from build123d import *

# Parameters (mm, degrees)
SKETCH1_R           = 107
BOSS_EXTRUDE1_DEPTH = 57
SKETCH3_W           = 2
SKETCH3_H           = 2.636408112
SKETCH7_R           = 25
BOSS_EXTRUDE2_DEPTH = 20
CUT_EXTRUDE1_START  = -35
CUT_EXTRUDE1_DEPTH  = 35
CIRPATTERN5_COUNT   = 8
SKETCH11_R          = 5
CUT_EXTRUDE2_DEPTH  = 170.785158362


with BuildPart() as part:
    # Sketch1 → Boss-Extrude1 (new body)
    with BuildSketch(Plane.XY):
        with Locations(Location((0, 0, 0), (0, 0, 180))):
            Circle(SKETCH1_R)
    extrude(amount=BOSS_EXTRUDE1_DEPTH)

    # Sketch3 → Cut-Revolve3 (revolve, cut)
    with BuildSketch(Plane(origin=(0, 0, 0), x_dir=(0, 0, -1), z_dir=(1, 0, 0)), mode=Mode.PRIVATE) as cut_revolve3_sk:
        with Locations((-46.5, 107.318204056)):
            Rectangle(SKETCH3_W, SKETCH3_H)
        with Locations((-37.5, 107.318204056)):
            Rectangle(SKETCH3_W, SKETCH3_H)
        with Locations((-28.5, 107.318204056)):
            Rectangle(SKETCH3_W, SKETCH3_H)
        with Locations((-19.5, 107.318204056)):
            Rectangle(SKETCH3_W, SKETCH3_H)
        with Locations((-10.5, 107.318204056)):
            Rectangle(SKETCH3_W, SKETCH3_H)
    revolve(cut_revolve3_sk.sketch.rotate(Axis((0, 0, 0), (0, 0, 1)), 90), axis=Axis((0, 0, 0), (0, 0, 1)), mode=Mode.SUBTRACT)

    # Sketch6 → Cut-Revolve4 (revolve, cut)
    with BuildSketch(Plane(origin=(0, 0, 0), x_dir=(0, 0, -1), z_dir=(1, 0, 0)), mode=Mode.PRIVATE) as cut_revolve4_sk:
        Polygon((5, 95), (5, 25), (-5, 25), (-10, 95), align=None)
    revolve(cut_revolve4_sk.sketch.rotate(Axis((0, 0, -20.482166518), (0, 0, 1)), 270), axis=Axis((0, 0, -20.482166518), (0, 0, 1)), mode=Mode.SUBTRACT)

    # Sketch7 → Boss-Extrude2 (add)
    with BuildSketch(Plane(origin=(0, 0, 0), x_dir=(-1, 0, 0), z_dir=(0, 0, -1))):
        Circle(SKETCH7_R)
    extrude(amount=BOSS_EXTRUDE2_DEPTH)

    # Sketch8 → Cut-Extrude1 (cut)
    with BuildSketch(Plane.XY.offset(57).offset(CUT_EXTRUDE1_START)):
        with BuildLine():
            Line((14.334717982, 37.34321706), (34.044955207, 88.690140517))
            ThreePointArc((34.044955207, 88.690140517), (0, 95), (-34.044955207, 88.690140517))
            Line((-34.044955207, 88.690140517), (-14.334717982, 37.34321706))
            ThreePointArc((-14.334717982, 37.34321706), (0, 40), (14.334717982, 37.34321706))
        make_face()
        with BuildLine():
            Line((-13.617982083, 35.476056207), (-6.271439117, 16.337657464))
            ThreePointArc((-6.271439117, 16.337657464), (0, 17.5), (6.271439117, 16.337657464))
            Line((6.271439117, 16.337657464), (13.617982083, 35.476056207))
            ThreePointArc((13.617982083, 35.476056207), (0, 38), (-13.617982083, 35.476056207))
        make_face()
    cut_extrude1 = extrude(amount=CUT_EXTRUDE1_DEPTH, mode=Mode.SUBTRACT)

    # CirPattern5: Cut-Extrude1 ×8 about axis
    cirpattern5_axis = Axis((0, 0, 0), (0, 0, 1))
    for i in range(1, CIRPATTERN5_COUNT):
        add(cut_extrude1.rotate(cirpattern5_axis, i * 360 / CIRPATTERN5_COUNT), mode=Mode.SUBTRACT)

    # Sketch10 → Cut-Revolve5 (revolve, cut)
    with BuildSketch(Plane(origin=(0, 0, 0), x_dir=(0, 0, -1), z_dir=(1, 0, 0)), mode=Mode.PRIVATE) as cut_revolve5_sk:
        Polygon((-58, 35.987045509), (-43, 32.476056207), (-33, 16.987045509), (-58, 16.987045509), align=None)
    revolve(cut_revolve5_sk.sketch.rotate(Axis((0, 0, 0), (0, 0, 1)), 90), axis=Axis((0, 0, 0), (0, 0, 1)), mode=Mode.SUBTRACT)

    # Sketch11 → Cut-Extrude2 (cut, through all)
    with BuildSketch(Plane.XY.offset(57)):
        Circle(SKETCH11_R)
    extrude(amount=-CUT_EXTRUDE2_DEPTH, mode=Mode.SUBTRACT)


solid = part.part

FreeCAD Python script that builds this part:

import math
import FreeCAD as App
import Part
import Sketcher
Q = App.Units.Quantity

doc = App.newDocument("Part")
body = doc.addObject("PartDesign::Body", "Body")

sketch1 = body.newObject("Sketcher::SketchObject", "Sketch")
sketch1.AttachmentSupport = (doc.getObject("XY_Plane"), [""])
sketch1.MapMode = "FlatFace"
sketch1.addGeometry(Part.Circle(App.Vector(0, 0, 0), App.Vector(0, 0, 1), 107), False)
sketch1.addConstraint(Sketcher.Constraint("Coincident", 0, 3, -1, 1))
sketch1.addConstraint(Sketcher.Constraint("Diameter", 0, Q("214 mm")))
pad1 = body.newObject("PartDesign::Pad", "Pad")
pad1.Profile = sketch1
pad1.Length = 57

sketch2 = body.newObject("Sketcher::SketchObject", "Sketch001")
sketch2.AttachmentSupport = (doc.getObject("YZ_Plane"), [""])
sketch2.MapMode = "FlatFace"
sketch2.addGeometry(Part.LineSegment(App.Vector(108.6, 47.5, 0), App.Vector(106, 47.5, 0)), False)
sketch2.addGeometry(Part.LineSegment(App.Vector(106, 47.5, 0), App.Vector(106, 45.5, 0)), False)
sketch2.addGeometry(Part.LineSegment(App.Vector(106, 45.5, 0), App.Vector(108.6, 45.5, 0)), False)
sketch2.addGeometry(Part.LineSegment(App.Vector(108.6, 45.5, 0), App.Vector(108.6, 47.5, 0)), False)
sketch2.addGeometry(Part.LineSegment(App.Vector(108.6, 38.5, 0), App.Vector(106, 38.5, 0)), False)
sketch2.addGeometry(Part.LineSegment(App.Vector(106, 38.5, 0), App.Vector(106, 36.5, 0)), False)
sketch2.addGeometry(Part.LineSegment(App.Vector(106, 36.5, 0), App.Vector(108.6, 36.5, 0)), False)
sketch2.addGeometry(Part.LineSegment(App.Vector(108.6, 36.5, 0), App.Vector(108.6, 38.5, 0)), False)
sketch2.addGeometry(Part.LineSegment(App.Vector(108.6, 29.5, 0), App.Vector(106, 29.5, 0)), False)
sketch2.addGeometry(Part.LineSegment(App.Vector(106, 29.5, 0), App.Vector(106, 27.5, 0)), False)
sketch2.addGeometry(Part.LineSegment(App.Vector(106, 27.5, 0), App.Vector(108.6, 27.5, 0)), False)
sketch2.addGeometry(Part.LineSegment(App.Vector(108.6, 27.5, 0), App.Vector(108.6, 29.5, 0)), False)
sketch2.addGeometry(Part.LineSegment(App.Vector(108.6, 20.5, 0), App.Vector(106, 20.5, 0)), False)
sketch2.addGeometry(Part.LineSegment(App.Vector(106, 20.5, 0), App.Vector(106, 18.5, 0)), False)
sketch2.addGeometry(Part.LineSegment(App.Vector(106, 18.5, 0), App.Vector(108.6, 18.5, 0)), False)
sketch2.addGeometry(Part.LineSegment(App.Vector(108.6, 18.5, 0), App.Vector(108.6, 20.5, 0)), False)
sketch2.addGeometry(Part.LineSegment(App.Vector(108.6, 11.5, 0), App.Vector(106, 11.5, 0)), False)
sketch2.addGeometry(Part.LineSegment(App.Vector(106, 11.5, 0), App.Vector(106, 9.5, 0)), False)
sketch2.addGeometry(Part.LineSegment(App.Vector(106, 9.5, 0), App.Vector(108.6, 9.5, 0)), False)
sketch2.addGeometry(Part.LineSegment(App.Vector(108.6, 9.5, 0), App.Vector(108.6, 11.5, 0)), False)
sketch2.addConstraint(Sketcher.Constraint("Coincident", 0, 2, 1, 1))
sketch2.addConstraint(Sketcher.Constraint("Coincident", 1, 2, 2, 1))
sketch2.addConstraint(Sketcher.Constraint("Coincident", 2, 2, 3, 1))
sketch2.addConstraint(Sketcher.Constraint("Coincident", 3, 2, 0, 1))
sketch2.addConstraint(Sketcher.Constraint("Coincident", 4, 2, 5, 1))
sketch2.addConstraint(Sketcher.Constraint("Coincident", 5, 2, 6, 1))
sketch2.addConstraint(Sketcher.Constraint("Coincident", 6, 2, 7, 1))
sketch2.addConstraint(Sketcher.Constraint("Coincident", 7, 2, 4, 1))
sketch2.addConstraint(Sketcher.Constraint("Coincident", 8, 2, 9, 1))
sketch2.addConstraint(Sketcher.Constraint("Coincident", 9, 2, 10, 1))
sketch2.addConstraint(Sketcher.Constraint("Coincident", 10, 2, 11, 1))
sketch2.addConstraint(Sketcher.Constraint("Coincident", 11, 2, 8, 1))
sketch2.addConstraint(Sketcher.Constraint("Coincident", 12, 2, 13, 1))
sketch2.addConstraint(Sketcher.Constraint("Coincident", 13, 2, 14, 1))
sketch2.addConstraint(Sketcher.Constraint("Coincident", 14, 2, 15, 1))
sketch2.addConstraint(Sketcher.Constraint("Coincident", 15, 2, 12, 1))
sketch2.addConstraint(Sketcher.Constraint("Coincident", 16, 2, 17, 1))
sketch2.addConstraint(Sketcher.Constraint("Coincident", 17, 2, 18, 1))
sketch2.addConstraint(Sketcher.Constraint("Coincident", 18, 2, 19, 1))
sketch2.addConstraint(Sketcher.Constraint("Coincident", 19, 2, 16, 1))
sketch2.addConstraint(Sketcher.Constraint("Horizontal", 0))
sketch2.addConstraint(Sketcher.Constraint("Vertical", 1))
sketch2.addConstraint(Sketcher.Constraint("Horizontal", 2))
sketch2.addConstraint(Sketcher.Constraint("Vertical", 3))
sketch2.addConstraint(Sketcher.Constraint("Horizontal", 4))
sketch2.addConstraint(Sketcher.Constraint("Vertical", 5))
sketch2.addConstraint(Sketcher.Constraint("Horizontal", 6))
sketch2.addConstraint(Sketcher.Constraint("Vertical", 7))
sketch2.addConstraint(Sketcher.Constraint("Horizontal", 8))
sketch2.addConstraint(Sketcher.Constraint("Vertical", 9))
sketch2.addConstraint(Sketcher.Constraint("Horizontal", 10))
sketch2.addConstraint(Sketcher.Constraint("Vertical", 11))
sketch2.addConstraint(Sketcher.Constraint("Horizontal", 12))
sketch2.addConstraint(Sketcher.Constraint("Vertical", 13))
sketch2.addConstraint(Sketcher.Constraint("Horizontal", 14))
sketch2.addConstraint(Sketcher.Constraint("Vertical", 15))
sketch2.addConstraint(Sketcher.Constraint("Horizontal", 16))
sketch2.addConstraint(Sketcher.Constraint("Vertical", 17))
sketch2.addConstraint(Sketcher.Constraint("Horizontal", 18))
sketch2.addConstraint(Sketcher.Constraint("Vertical", 19))
sketch2.addConstraint(Sketcher.Constraint("Vertical", 1, 2, 4, 2))
sketch2.addConstraint(Sketcher.Constraint("Vertical", 3, 2, 6, 2))
sketch2.addConstraint(Sketcher.Constraint("Vertical", 5, 2, 8, 2))
sketch2.addConstraint(Sketcher.Constraint("Vertical", 7, 2, 10, 2))
sketch2.addConstraint(Sketcher.Constraint("Vertical", 9, 2, 12, 2))
sketch2.addConstraint(Sketcher.Constraint("Vertical", 11, 2, 14, 2))
sketch2.addConstraint(Sketcher.Constraint("Vertical", 13, 2, 16, 2))
sketch2.addConstraint(Sketcher.Constraint("Vertical", 15, 2, 18, 2))
sketch2.addConstraint(Sketcher.Constraint("Equal", 3, 5))
sketch2.addConstraint(Sketcher.Constraint("Equal", 7, 9))
sketch2.addConstraint(Sketcher.Constraint("Equal", 11, 13))
sketch2.addConstraint(Sketcher.Constraint("Equal", 15, 17))
sketch2.addConstraint(Sketcher.Constraint("DistanceY", 1, 2, 1, 1, Q("2 mm")))
sketch2.addConstraint(Sketcher.Constraint("DistanceX", -1, 1, 0, 2, Q("106 mm")))
sketch2.addConstraint(Sketcher.Constraint("DistanceY", 4, 2, 1, 2, Q("7 mm")))
sketch2.addConstraint(Sketcher.Constraint("DistanceY", 8, 2, 5, 2, Q("7 mm")))
sketch2.addConstraint(Sketcher.Constraint("DistanceY", 12, 2, 9, 2, Q("7 mm")))
sketch2.addConstraint(Sketcher.Constraint("DistanceY", 16, 2, 13, 2, Q("7 mm")))
sketch2.addConstraint(Sketcher.Constraint("DistanceY", -1, 1, 0, 2, Q("47.5 mm")))
sketch2.addConstraint(Sketcher.Constraint("DistanceX", 0, 2, 0, 1, Q("2.636408 mm")))
groove = body.newObject("PartDesign::Groove", "Groove")
groove.Profile = sketch2
groove.ReferenceAxis = (sketch2, ["V_Axis"])
groove.Angle = 360

sketch3 = body.newObject("Sketcher::SketchObject", "Sketch002")
sketch3.AttachmentSupport = (doc.getObject("YZ_Plane"), [""])
sketch3.MapMode = "FlatFace"
sketch3.addGeometry(Part.LineSegment(App.Vector(25, -5, 0), App.Vector(95, -5, 0)), False)
sketch3.addGeometry(Part.LineSegment(App.Vector(95, -5, 0), App.Vector(95, 10, 0)), False)
sketch3.addGeometry(Part.LineSegment(App.Vector(95, 10, 0), App.Vector(25, 5, 0)), False)
sketch3.addGeometry(Part.LineSegment(App.Vector(25, 5, 0), App.Vector(25, -5, 0)), False)
sketch3.addConstraint(Sketcher.Constraint("Coincident", 0, 2, 1, 1))
sketch3.addConstraint(Sketcher.Constraint("Coincident", 1, 2, 2, 1))
sketch3.addConstraint(Sketcher.Constraint("Coincident", 2, 2, 3, 1))
sketch3.addConstraint(Sketcher.Constraint("Coincident", 3, 2, 0, 1))
sketch3.addConstraint(Sketcher.Constraint("Horizontal", 0))
sketch3.addConstraint(Sketcher.Constraint("Vertical", 1))
sketch3.addConstraint(Sketcher.Constraint("Vertical", 3))
sketch3.addConstraint(Sketcher.Constraint("DistanceX", 0, 1, 0, 2, Q("70 mm")))
sketch3.addConstraint(Sketcher.Constraint("DistanceY", 1, 1, 1, 2, Q("15 mm")))
sketch3.addConstraint(Sketcher.Constraint("DistanceY", 3, 2, 3, 1, Q("10 mm")))
sketch3.addConstraint(Sketcher.Constraint("DistanceX", -1, 1, 0, 2, Q("95 mm")))
sketch3.addConstraint(Sketcher.Constraint("DistanceY", 0, 2, -1, 1, Q("5 mm")))
groove2 = body.newObject("PartDesign::Groove", "Groove001")
groove2.Profile = sketch3
groove2.ReferenceAxis = (sketch3, ["V_Axis"])
groove2.Angle = 360

sketch4 = body.newObject("Sketcher::SketchObject", "Sketch003")
sketch4.AttachmentSupport = (doc.getObject("XY_Plane"), [""])
sketch4.MapMode = "FlatFace"
sketch4.addGeometry(Part.Circle(App.Vector(0, 0, 0), App.Vector(0, 0, 1), 25), False)
sketch4.addConstraint(Sketcher.Constraint("Coincident", 0, 3, -1, 1))
sketch4.addConstraint(Sketcher.Constraint("Diameter", 0, Q("50 mm")))
pad2 = body.newObject("PartDesign::Pad", "Pad001")
pad2.Profile = sketch4
pad2.Length = 20
pad2.Reversed = True

sketch5 = body.newObject("Sketcher::SketchObject", "Sketch004")
sketch5.AttachmentSupport = (doc.getObject("XY_Plane"), [""])
sketch5.MapMode = "FlatFace"
sketch5.AttachmentOffset = App.Placement(App.Vector(0, 0, 22), App.Rotation())
sketch5.addGeometry(Part.LineSegment(App.Vector(14, 37, 0), App.Vector(34, 89, 0)), False)
sketch5.addGeometry(Part.ArcOfCircle(Part.Circle(App.Vector(0, 0, 0), App.Vector(0, 0, 1), 95), math.radians(69), math.radians(111)), False)
sketch5.addGeometry(Part.LineSegment(App.Vector(-34, 89, 0), App.Vector(-14, 37, 0)), False)
sketch5.addGeometry(Part.ArcOfCircle(Part.Circle(App.Vector(0, 0, 0), App.Vector(0, 0, 1), 40), math.radians(69), math.radians(111)), False)
sketch5.addGeometry(Part.LineSegment(App.Vector(-14, 35, 0), App.Vector(-6, 16, 0)), False)
sketch5.addGeometry(Part.ArcOfCircle(Part.Circle(App.Vector(0, 0, 0), App.Vector(0, 0, 1), 18), math.radians(69), math.radians(111)), False)
sketch5.addGeometry(Part.LineSegment(App.Vector(6, 16, 0), App.Vector(14, 35, 0)), False)
sketch5.addGeometry(Part.ArcOfCircle(Part.Circle(App.Vector(0, 0, 0), App.Vector(0, 0, 1), 38), math.radians(69), math.radians(111)), False)
sketch5.addConstraint(Sketcher.Constraint("Coincident", 0, 2, 1, 1))
sketch5.addConstraint(Sketcher.Constraint("Coincident", 1, 2, 2, 1))
sketch5.addConstraint(Sketcher.Constraint("Coincident", 2, 2, 3, 2))
sketch5.addConstraint(Sketcher.Constraint("Coincident", 3, 1, 0, 1))
sketch5.addConstraint(Sketcher.Constraint("Coincident", 4, 2, 5, 2))
sketch5.addConstraint(Sketcher.Constraint("Coincident", 5, 1, 6, 1))
sketch5.addConstraint(Sketcher.Constraint("Coincident", 6, 2, 7, 1))
sketch5.addConstraint(Sketcher.Constraint("Coincident", 7, 2, 4, 1))
sketch5.addConstraint(Sketcher.Constraint("Coincident", 1, 3, -1, 1))
sketch5.addConstraint(Sketcher.Constraint("Coincident", 3, 3, -1, 1))
sketch5.addConstraint(Sketcher.Constraint("Coincident", 5, 3, -1, 1))
sketch5.addConstraint(Sketcher.Constraint("Coincident", 7, 3, -1, 1))
sketch5.addConstraint(Sketcher.Constraint("Parallel", 2, 4))
sketch5.addConstraint(Sketcher.Constraint("Parallel", 0, 6))
sketch5.addConstraint(Sketcher.Constraint("Horizontal", 0, 2, 1, 2))
sketch5.addConstraint(Sketcher.Constraint("Horizontal", 2, 2, 3, 1))
sketch5.addConstraint(Sketcher.Constraint("Horizontal", 4, 2, 5, 1))
sketch5.addConstraint(Sketcher.Constraint("Radius", 1, Q("95 mm")))
sketch5.addConstraint(Sketcher.Constraint("Radius", 3, Q("40 mm")))
sketch5.addConstraint(Sketcher.Constraint("Radius", 7, Q("38 mm")))
sketch5.addConstraint(Sketcher.Constraint("Radius", 5, Q("17.5 mm")))
sketch5.addConstraint(Sketcher.Constraint("Angle", 0, Q("69 deg")))
sketch5.addConstraint(Sketcher.Constraint("DistanceX", 2, 2, 6, 2, Q("27.9527 mm")))
sketch5.addConstraint(Sketcher.Constraint("DistanceY", -1, 1, 0, 2, Q("88.690141 mm")))
pocket1 = body.newObject("PartDesign::Pocket", "Pocket")
pocket1.Profile = sketch5
pocket1.Length = 35
pocket1.Reversed = True
doc.recompute()

polarpattern = body.newObject("PartDesign::PolarPattern", "PolarPattern")
polarpattern.Originals = [pocket1]
polarpattern.Axis = (doc.getObject("Z_Axis"), [""])
polarpattern.Angle = 360
polarpattern.Occurrences = 8
body.Tip = polarpattern

sketch6 = body.newObject("Sketcher::SketchObject", "Sketch005")
sketch6.AttachmentSupport = (doc.getObject("YZ_Plane"), [""])
sketch6.MapMode = "FlatFace"
sketch6.addGeometry(Part.LineSegment(App.Vector(32, 43, 0), App.Vector(36, 58, 0)), False)
sketch6.addGeometry(Part.LineSegment(App.Vector(36, 58, 0), App.Vector(17, 58, 0)), False)
sketch6.addGeometry(Part.LineSegment(App.Vector(17, 58, 0), App.Vector(17, 33, 0)), False)
sketch6.addGeometry(Part.LineSegment(App.Vector(17, 33, 0), App.Vector(32, 43, 0)), False)
sketch6.addConstraint(Sketcher.Constraint("Coincident", 0, 2, 1, 1))
sketch6.addConstraint(Sketcher.Constraint("Coincident", 1, 2, 2, 1))
sketch6.addConstraint(Sketcher.Constraint("Coincident", 2, 2, 3, 1))
sketch6.addConstraint(Sketcher.Constraint("Coincident", 3, 2, 0, 1))
sketch6.addConstraint(Sketcher.Constraint("Horizontal", 1))
sketch6.addConstraint(Sketcher.Constraint("Vertical", 2))
sketch6.addConstraint(Sketcher.Constraint("DistanceX", 1, 2, 1, 1, Q("19 mm")))
sketch6.addConstraint(Sketcher.Constraint("DistanceY", 2, 2, 2, 1, Q("25 mm")))
sketch6.addConstraint(Sketcher.Constraint("DistanceY", -1, 1, 0, 2, Q("58 mm")))
sketch6.addConstraint(Sketcher.Constraint("DistanceY", -1, 1, 3, 2, Q("43 mm")))
sketch6.addConstraint(Sketcher.Constraint("DistanceX", 3, 2, 0, 2, Q("3.510989 mm")))
sketch6.addConstraint(Sketcher.Constraint("DistanceX", -1, 1, 0, 2, Q("35.987046 mm")))
groove3 = body.newObject("PartDesign::Groove", "Groove002")
groove3.Profile = sketch6
groove3.ReferenceAxis = (sketch6, ["V_Axis"])
groove3.Angle = 360

sketch7 = body.newObject("Sketcher::SketchObject", "Sketch006")
sketch7.AttachmentSupport = (doc.getObject("XY_Plane"), [""])
sketch7.MapMode = "FlatFace"
sketch7.AttachmentOffset = App.Placement(App.Vector(0, 0, 57), App.Rotation())
sketch7.addGeometry(Part.Circle(App.Vector(0, 0, 0), App.Vector(0, 0, 1), 5), False)
sketch7.addConstraint(Sketcher.Constraint("Coincident", 0, 3, -1, 1))
sketch7.addConstraint(Sketcher.Constraint("Diameter", 0, Q("10 mm")))
pocket2 = body.newObject("PartDesign::Pocket", "Pocket001")
pocket2.Profile = sketch7
pocket2.Type = "ThroughAll"

doc.recompute()
